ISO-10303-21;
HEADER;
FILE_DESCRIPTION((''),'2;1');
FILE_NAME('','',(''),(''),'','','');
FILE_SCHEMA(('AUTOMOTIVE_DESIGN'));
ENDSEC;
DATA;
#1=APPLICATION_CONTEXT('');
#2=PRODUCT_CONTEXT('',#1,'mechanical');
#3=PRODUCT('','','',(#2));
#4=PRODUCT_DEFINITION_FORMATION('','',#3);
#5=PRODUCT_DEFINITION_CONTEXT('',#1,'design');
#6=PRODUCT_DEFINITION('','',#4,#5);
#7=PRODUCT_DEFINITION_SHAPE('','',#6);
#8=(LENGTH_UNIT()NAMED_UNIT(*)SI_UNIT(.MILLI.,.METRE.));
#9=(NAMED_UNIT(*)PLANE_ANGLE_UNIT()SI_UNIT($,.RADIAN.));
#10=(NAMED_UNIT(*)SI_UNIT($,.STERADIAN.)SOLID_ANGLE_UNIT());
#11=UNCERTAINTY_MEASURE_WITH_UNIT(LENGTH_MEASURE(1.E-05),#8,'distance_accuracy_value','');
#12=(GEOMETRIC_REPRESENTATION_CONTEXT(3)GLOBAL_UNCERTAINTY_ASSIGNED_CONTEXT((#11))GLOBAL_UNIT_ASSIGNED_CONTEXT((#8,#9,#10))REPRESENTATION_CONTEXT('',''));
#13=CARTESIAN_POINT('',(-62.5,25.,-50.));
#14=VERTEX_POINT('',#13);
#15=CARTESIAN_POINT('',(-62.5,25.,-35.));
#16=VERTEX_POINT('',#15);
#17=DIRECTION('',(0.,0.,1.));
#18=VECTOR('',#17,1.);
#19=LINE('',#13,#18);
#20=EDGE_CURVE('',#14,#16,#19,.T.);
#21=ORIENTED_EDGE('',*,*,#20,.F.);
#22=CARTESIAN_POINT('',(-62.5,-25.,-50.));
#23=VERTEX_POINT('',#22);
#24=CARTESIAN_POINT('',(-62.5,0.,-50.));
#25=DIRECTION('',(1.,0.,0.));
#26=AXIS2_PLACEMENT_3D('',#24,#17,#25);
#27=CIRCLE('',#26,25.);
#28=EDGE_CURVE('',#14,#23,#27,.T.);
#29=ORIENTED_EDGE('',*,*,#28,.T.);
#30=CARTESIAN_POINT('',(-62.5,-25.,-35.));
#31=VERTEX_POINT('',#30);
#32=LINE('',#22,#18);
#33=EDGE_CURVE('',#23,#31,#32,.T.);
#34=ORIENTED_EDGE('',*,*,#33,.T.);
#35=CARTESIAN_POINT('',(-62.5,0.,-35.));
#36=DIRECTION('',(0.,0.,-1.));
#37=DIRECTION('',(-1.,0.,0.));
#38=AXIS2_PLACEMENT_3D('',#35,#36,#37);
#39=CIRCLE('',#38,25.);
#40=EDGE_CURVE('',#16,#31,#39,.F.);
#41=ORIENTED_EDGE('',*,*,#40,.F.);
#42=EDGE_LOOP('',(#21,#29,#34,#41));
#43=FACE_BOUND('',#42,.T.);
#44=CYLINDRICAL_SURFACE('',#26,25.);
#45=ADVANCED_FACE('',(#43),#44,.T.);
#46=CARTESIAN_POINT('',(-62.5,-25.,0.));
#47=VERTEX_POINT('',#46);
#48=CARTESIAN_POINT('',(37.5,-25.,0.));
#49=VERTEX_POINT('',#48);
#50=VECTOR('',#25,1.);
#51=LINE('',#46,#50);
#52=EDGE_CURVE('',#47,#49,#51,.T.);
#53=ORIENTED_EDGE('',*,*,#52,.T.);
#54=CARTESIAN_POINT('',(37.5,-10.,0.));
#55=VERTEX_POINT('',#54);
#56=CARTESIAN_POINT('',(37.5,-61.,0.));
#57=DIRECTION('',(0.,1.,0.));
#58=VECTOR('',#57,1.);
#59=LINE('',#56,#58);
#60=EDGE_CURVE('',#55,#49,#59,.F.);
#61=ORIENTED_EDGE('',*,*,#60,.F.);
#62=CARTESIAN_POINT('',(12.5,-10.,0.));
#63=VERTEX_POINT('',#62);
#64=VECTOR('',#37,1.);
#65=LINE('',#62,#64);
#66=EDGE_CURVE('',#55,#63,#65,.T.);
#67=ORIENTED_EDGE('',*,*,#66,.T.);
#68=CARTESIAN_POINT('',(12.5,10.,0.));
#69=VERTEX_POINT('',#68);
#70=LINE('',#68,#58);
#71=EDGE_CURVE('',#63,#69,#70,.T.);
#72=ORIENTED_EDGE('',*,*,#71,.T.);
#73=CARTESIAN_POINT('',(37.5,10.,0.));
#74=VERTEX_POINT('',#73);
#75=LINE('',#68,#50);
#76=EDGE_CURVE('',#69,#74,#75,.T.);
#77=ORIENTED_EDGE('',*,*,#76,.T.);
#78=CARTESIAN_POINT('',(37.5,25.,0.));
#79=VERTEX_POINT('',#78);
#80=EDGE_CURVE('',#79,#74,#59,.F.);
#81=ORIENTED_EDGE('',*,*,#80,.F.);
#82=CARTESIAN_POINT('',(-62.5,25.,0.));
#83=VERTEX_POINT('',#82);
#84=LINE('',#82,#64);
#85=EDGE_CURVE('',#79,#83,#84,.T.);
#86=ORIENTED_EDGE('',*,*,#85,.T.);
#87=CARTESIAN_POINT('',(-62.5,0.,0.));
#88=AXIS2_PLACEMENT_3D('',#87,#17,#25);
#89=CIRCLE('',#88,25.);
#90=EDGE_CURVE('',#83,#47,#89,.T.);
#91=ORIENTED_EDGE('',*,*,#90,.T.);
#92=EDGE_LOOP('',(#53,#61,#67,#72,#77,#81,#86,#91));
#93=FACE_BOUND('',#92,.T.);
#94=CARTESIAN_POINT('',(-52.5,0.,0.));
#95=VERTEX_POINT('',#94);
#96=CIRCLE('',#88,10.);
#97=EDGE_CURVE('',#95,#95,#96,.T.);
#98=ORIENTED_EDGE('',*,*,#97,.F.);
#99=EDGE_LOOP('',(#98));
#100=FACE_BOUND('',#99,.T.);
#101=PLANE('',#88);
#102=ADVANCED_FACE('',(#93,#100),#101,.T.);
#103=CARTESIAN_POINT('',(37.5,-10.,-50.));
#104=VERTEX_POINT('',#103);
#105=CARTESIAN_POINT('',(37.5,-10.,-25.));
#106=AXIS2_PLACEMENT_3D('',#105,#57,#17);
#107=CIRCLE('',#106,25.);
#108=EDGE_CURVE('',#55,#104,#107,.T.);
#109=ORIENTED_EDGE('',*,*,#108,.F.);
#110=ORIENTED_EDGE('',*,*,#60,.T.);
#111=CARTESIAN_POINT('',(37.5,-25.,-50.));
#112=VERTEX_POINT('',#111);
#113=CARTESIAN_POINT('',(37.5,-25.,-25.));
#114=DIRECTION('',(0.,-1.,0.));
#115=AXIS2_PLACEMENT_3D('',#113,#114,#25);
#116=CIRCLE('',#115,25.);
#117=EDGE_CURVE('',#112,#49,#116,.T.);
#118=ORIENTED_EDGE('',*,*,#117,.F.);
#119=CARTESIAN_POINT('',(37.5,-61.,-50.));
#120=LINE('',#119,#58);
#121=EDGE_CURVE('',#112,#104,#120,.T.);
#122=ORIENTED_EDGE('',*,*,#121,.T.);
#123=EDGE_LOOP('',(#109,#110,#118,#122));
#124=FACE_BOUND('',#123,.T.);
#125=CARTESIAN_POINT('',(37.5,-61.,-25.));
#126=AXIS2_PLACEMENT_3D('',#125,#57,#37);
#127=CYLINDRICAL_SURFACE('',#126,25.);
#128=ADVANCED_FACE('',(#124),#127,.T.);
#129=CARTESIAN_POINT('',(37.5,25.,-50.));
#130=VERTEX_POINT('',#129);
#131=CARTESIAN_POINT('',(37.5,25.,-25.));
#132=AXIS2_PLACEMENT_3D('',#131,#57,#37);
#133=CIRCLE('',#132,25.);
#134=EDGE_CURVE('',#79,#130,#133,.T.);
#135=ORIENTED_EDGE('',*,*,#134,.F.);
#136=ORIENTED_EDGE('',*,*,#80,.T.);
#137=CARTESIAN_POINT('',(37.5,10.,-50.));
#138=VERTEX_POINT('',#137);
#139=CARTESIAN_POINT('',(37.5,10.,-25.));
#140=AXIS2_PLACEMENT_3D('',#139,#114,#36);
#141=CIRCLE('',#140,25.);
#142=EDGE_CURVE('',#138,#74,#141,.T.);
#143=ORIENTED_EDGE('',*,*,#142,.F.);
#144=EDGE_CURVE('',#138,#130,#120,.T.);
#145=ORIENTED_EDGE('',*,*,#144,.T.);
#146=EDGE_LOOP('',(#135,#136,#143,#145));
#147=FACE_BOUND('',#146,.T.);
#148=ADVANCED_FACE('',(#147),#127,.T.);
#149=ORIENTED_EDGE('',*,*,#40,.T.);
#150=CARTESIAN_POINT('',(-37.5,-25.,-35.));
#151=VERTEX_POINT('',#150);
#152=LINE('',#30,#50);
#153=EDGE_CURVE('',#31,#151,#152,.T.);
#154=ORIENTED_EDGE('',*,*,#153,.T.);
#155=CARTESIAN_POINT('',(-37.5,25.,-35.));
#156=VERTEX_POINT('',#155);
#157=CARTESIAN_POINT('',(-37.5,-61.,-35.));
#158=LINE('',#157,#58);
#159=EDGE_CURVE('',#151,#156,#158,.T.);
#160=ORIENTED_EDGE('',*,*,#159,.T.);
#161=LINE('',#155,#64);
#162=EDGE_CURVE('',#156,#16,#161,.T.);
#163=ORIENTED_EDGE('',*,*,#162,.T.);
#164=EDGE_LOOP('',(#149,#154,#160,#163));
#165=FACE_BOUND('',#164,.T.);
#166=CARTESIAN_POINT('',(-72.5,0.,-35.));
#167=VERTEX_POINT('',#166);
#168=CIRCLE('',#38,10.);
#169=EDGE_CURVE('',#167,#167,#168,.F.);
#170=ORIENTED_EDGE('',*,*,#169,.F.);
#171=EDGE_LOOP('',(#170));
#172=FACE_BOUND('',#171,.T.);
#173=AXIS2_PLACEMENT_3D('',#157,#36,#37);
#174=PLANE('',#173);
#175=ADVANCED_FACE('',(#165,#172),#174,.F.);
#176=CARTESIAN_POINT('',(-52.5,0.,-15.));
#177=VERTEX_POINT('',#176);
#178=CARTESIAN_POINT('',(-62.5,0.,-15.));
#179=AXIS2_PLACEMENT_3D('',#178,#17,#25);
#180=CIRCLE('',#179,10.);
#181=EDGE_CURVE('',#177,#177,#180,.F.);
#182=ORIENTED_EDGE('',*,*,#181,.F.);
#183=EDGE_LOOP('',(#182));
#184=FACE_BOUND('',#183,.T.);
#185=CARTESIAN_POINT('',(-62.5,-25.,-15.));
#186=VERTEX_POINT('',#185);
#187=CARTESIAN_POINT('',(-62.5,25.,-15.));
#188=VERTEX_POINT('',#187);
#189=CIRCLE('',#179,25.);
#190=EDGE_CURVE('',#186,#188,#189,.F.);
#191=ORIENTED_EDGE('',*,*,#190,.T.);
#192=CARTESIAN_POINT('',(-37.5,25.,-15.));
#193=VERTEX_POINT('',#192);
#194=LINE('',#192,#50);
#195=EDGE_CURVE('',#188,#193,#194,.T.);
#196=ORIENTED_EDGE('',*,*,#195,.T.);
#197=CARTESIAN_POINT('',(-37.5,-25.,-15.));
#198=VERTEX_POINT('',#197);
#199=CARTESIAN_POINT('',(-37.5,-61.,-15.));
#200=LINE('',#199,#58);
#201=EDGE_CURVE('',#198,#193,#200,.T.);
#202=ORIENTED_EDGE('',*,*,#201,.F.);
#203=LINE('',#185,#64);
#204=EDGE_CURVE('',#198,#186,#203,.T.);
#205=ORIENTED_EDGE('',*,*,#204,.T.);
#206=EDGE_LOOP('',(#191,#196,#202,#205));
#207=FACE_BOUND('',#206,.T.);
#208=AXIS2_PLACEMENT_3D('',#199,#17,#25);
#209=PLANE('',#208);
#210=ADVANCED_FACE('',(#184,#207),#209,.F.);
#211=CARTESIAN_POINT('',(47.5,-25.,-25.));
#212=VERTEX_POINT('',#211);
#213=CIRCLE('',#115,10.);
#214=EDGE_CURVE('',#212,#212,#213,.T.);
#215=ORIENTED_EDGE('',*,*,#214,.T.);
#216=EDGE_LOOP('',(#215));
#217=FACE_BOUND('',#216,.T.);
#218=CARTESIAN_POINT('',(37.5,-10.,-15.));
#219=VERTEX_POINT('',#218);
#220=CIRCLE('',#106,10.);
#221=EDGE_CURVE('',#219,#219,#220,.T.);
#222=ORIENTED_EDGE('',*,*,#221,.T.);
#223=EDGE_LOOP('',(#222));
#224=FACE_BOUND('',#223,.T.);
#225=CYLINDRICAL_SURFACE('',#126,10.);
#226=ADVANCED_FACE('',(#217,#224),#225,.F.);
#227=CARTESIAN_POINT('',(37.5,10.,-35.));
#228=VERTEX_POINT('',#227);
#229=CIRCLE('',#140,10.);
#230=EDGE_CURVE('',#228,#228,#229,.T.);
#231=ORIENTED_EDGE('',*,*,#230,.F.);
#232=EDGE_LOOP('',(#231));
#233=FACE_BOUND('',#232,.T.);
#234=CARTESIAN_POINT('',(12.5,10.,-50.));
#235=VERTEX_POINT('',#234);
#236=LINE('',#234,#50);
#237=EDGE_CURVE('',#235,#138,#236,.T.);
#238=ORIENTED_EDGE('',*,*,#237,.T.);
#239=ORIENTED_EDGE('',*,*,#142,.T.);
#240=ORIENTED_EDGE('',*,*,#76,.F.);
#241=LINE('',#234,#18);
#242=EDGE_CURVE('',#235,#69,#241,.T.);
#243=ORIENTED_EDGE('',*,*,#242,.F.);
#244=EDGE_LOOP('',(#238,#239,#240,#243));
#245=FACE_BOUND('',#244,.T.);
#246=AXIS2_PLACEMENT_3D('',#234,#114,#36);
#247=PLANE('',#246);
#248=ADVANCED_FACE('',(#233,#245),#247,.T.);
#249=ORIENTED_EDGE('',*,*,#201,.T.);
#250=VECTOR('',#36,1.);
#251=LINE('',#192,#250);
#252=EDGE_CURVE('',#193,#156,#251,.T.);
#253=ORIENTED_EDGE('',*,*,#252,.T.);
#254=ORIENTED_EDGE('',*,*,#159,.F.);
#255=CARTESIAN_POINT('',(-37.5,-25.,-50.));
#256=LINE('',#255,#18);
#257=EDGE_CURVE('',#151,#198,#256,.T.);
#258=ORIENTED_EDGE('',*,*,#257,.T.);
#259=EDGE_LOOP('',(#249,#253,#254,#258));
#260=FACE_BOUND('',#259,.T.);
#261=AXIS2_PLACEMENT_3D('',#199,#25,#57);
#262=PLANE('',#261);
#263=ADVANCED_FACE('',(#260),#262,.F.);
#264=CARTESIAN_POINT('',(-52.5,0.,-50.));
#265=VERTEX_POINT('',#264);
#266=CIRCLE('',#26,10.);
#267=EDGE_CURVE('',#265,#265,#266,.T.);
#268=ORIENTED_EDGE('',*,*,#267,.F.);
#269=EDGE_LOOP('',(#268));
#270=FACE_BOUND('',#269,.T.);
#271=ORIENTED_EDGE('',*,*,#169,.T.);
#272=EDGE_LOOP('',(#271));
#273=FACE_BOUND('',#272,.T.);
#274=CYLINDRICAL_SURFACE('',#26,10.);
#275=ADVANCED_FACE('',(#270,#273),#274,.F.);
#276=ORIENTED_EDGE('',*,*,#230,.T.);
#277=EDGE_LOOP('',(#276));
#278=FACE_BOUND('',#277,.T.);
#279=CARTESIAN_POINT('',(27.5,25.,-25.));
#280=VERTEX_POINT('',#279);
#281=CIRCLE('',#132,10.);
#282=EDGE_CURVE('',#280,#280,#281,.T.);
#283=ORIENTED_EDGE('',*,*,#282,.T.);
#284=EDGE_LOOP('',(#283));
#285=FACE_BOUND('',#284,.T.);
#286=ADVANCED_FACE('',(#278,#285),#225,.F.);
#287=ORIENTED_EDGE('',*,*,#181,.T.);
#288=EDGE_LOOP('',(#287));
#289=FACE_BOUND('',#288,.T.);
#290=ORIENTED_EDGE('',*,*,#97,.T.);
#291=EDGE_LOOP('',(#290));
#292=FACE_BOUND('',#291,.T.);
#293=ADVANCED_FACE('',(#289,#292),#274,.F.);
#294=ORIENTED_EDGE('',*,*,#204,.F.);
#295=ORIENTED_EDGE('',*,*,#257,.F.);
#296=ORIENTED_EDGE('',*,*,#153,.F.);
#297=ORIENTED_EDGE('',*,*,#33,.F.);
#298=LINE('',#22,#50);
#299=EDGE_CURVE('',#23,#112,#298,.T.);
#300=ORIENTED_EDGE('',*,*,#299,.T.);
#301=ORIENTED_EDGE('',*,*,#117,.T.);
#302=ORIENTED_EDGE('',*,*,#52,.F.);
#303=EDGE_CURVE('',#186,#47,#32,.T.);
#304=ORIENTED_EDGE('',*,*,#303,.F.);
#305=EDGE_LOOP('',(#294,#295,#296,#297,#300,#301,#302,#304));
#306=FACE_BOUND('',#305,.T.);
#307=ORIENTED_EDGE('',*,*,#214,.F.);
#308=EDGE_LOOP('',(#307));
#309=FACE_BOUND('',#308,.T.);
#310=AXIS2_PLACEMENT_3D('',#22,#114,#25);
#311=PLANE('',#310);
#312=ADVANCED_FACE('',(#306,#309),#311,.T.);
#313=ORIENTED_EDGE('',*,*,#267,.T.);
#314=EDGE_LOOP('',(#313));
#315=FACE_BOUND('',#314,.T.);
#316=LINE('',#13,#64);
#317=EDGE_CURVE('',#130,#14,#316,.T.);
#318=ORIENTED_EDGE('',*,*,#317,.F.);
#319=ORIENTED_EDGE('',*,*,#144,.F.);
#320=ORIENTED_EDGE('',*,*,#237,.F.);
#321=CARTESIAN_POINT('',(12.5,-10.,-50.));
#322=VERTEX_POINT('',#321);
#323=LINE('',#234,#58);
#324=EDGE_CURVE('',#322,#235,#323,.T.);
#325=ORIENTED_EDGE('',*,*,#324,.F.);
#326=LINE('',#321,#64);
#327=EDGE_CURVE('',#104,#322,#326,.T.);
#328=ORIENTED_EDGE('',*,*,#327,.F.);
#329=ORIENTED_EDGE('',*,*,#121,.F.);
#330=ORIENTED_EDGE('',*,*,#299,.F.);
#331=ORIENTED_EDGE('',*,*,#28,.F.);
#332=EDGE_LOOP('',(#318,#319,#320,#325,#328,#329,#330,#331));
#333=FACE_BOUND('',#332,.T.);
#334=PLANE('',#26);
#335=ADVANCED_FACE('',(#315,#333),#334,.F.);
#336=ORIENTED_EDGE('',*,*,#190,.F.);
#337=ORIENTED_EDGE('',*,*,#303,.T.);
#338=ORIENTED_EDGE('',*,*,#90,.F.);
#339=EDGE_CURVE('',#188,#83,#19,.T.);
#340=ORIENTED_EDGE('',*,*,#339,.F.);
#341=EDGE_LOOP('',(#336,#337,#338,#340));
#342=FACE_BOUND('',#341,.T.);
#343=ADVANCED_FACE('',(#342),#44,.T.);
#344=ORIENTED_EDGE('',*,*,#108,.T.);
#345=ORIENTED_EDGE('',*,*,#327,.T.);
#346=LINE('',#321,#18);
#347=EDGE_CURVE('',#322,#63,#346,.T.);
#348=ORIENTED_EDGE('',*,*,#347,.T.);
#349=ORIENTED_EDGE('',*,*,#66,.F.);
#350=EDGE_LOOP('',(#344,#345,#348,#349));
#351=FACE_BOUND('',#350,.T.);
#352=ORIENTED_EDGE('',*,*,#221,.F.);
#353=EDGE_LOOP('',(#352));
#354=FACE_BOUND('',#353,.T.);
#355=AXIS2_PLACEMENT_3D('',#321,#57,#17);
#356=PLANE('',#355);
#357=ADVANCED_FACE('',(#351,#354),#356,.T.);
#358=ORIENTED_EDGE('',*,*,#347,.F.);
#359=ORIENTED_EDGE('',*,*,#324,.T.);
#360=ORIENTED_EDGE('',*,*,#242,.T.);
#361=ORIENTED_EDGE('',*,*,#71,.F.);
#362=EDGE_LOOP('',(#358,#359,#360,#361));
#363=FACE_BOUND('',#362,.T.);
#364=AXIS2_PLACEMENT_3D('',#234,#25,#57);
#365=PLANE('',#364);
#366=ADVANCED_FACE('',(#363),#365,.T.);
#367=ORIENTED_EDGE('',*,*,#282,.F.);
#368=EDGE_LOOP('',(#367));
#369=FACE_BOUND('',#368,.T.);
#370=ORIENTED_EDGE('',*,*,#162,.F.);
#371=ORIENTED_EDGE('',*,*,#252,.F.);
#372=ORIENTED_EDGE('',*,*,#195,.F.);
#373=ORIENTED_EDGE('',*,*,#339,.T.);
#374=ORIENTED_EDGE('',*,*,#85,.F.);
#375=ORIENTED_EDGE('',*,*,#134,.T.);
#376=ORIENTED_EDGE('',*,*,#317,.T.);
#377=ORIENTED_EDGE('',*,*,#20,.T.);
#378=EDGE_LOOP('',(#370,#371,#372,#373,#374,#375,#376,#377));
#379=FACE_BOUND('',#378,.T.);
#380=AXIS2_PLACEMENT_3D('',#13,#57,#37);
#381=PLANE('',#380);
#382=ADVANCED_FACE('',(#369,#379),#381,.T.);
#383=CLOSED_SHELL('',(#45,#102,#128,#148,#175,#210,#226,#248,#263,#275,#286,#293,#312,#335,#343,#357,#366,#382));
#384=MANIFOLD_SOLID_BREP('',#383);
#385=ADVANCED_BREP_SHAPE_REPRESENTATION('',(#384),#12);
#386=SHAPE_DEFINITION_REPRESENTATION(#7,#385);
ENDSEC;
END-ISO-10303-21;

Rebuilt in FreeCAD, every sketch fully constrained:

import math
import FreeCAD as App
import Part
import Sketcher

V = App.Vector
Q = App.Units.Quantity

doc = App.newDocument("Part")
params = doc.addObject("Spreadsheet::Sheet", "Params")
for row, (alias, value) in enumerate([
    ("sketch1_diameter", "20 mm"),
    ("sketch1_radius", "25 mm"),
    ("sketch1_width", "50 mm"),
    ("sketch1_width2", "125 mm"),
    ("sketch1_height", "15 mm"),
    ("pad1_length", "50 mm"),
    ("sketch2_radius", "25 mm"),
    ("pocket1_length", "86 mm"),
    ("sketch3_radius", "25 mm"),
    ("pocket2_length", "86 mm"),
    ("sketch4_diameter", "20 mm"),
    ("pocket3_length", "86 mm"),
    ("sketch5_width", "50 mm"),
    ("sketch5_height", "20 mm"),
    ("pocket4_length", "86 mm"),
], start=1):
    params.set(f"A{row}", alias)
    params.set(f"B{row}", "=" + value)
    params.setAlias(f"B{row}", alias)

body = doc.addObject("PartDesign::Body", "Body")

# Sketch on XY plane
sketch1 = body.newObject("Sketcher::SketchObject", "Sketch")
sketch1.AttachmentSupport = (doc.getObject("XY_Plane"), [""])
sketch1.MapMode = "FlatFace"
sketch1.addGeometry(Part.LineSegment(V(12.5, 10, 0), V(62.5, 10, 0)), False)
sketch1.addGeometry(Part.LineSegment(V(62.5, 10, 0), V(62.5, 25, 0)), False)
sketch1.addGeometry(Part.LineSegment(V(62.5, 25, 0), V(-62.5, 25, 0)), False)
sketch1.addGeometry(Part.ArcOfCircle(Part.Circle(V(-62.5, 0, 0), V(0, 0, 1), 25), math.radians(90), math.radians(270)), False)
sketch1.addGeometry(Part.LineSegment(V(-62.5, -25, 0), V(62.5, -25, 0)), False)
sketch1.addGeometry(Part.LineSegment(V(62.5, -25, 0), V(62.5, -10, 0)), False)
sketch1.addGeometry(Part.LineSegment(V(62.5, -10, 0), V(12.5, -10, 0)), False)
sketch1.addGeometry(Part.LineSegment(V(12.5, -10, 0), V(12.5, 10, 0)), False)
sketch1.addGeometry(Part.Circle(V(-62.5, 0, 0), V(0, 0, 1), 10), False)
sketch1.addConstraint(Sketcher.Constraint("Coincident", 0, 2, 1, 1))
sketch1.addConstraint(Sketcher.Constraint("Coincident", 1, 2, 2, 1))
sketch1.addConstraint(Sketcher.Constraint("Tangent", 2, 2, 3, 1))
sketch1.addConstraint(Sketcher.Constraint("Tangent", 3, 2, 4, 1))
sketch1.addConstraint(Sketcher.Constraint("Coincident", 4, 2, 5, 1))
sketch1.addConstraint(Sketcher.Constraint("Coincident", 5, 2, 6, 1))
sketch1.addConstraint(Sketcher.Constraint("Coincident", 6, 2, 7, 1))
sketch1.addConstraint(Sketcher.Constraint("Coincident", 7, 2, 0, 1))
sketch1.addConstraint(Sketcher.Constraint("Horizontal", 0))
sketch1.addConstraint(Sketcher.Constraint("Vertical", 1))
sketch1.addConstraint(Sketcher.Constraint("Horizontal", 2))
sketch1.addConstraint(Sketcher.Constraint("Horizontal", 4))
sketch1.addConstraint(Sketcher.Constraint("Vertical", 5))
sketch1.addConstraint(Sketcher.Constraint("Horizontal", 6))
sketch1.addConstraint(Sketcher.Constraint("Vertical", 7))
sketch1.addConstraint(Sketcher.Constraint("Coincident", 8, 3, 3, 3))
sketch1.addConstraint(Sketcher.Constraint("Symmetric", 1, 2, 3, 2, -1, 1))
sketch1.addConstraint(Sketcher.Constraint("Symmetric", 0, 2, 5, 2, -1))
sketch1.addConstraint(Sketcher.Constraint("Diameter", 8, Q("20 mm")))
sketch1.addConstraint(Sketcher.Constraint("Radius", 3, Q("25 mm")))
sketch1.addConstraint(Sketcher.Constraint("DistanceX", 0, 1, 0, 2, Q("50 mm")))
sketch1.addConstraint(Sketcher.Constraint("DistanceX", 2, 2, 2, 1, Q("125 mm")))
sketch1.addConstraint(Sketcher.Constraint("DistanceY", 1, 1, 1, 2, Q("15 mm")))
sketch1.setExpression("Constraints[18]", "Params.sketch1_diameter")
sketch1.setExpression("Constraints[19]", "Params.sketch1_radius")
sketch1.setExpression("Constraints[20]", "Params.sketch1_width")
sketch1.setExpression("Constraints[21]", "Params.sketch1_width2")
sketch1.setExpression("Constraints[22]", "Params.sketch1_height")
pad1 = body.newObject("PartDesign::Pad", "Pad")
pad1.Profile = sketch1
pad1.setExpression("Length", "Params.pad1_length")
pad1.Reversed = True

# Sketch on XZ plane
sketch2 = body.newObject("Sketcher::SketchObject", "Sketch001")
sketch2.AttachmentSupport = (doc.getObject("XZ_Plane"), [""])
sketch2.MapMode = "FlatFace"
sketch2.AttachmentOffset = App.Placement(V(0, 0, -25), App.Rotation())
sketch2.addGeometry(Part.LineSegment(V(62.5, -50, 0), V(37.5, -50, 0)), False)
sketch2.addGeometry(Part.ArcOfCircle(Part.Circle(V(37.5, -25, 0), V(0, 0, 1), 25), math.radians(-90), math.radians(0)), False)
sketch2.addGeometry(Part.LineSegment(V(62.5, -25, 0), V(62.5, -50, 0)), False)
sketch2.addConstraint(Sketcher.Constraint("Tangent", 0, 2, 1, 1))
sketch2.addConstraint(Sketcher.Constraint("Tangent", 1, 2, 2, 1))
sketch2.addConstraint(Sketcher.Constraint("Coincident", 2, 2, 0, 1))
sketch2.addConstraint(Sketcher.Constraint("Horizontal", 0))
sketch2.addConstraint(Sketcher.Constraint("Vertical", 2))
sketch2.addConstraint(Sketcher.Constraint("Radius", 1, Q("25 mm")))
sketch2.addConstraint(Sketcher.Constraint("DistanceY", 1, 3, -1, 1, Q("25 mm")))
sketch2.addConstraint(Sketcher.Constraint("DistanceX", -1, 1, 1, 3, Q("37.5 mm")))
sketch2.setExpression("Constraints[5]", "Params.sketch2_radius")
pocket1 = body.newObject("PartDesign::Pocket", "Pocket")
pocket1.Profile = sketch2
pocket1.setExpression("Length", "Params.pocket1_length")
pocket1.Reversed = True

# Sketch on XZ plane
sketch3 = body.newObject("Sketcher::SketchObject", "Sketch002")
sketch3.AttachmentSupport = (doc.getObject("XZ_Plane"), [""])
sketch3.MapMode = "FlatFace"
sketch3.AttachmentOffset = App.Placement(V(0, 0, -25), App.Rotation())
sketch3.addGeometry(Part.LineSegment(V(37.5, 0, 0), V(62.5, 0, 0)), False)
sketch3.addGeometry(Part.LineSegment(V(62.5, 0, 0), V(62.5, -25, 0)), False)
sketch3.addGeometry(Part.ArcOfCircle(Part.Circle(V(37.5, -25, 0), V(0, 0, 1), 25), math.radians(0), math.radians(90)), False)
sketch3.addConstraint(Sketcher.Constraint("Coincident", 0, 2, 1, 1))
sketch3.addConstraint(Sketcher.Constraint("Tangent", 1, 2, 2, 1))
sketch3.addConstraint(Sketcher.Constraint("Tangent", 2, 2, 0, 1))
sketch3.addConstraint(Sketcher.Constraint("Horizontal", 0))
sketch3.addConstraint(Sketcher.Constraint("Vertical", 1))
sketch3.addConstraint(Sketcher.Constraint("PointOnObject", 0, 2, -1))
sketch3.addConstraint(Sketcher.Constraint("Radius", 2, Q("25 mm")))
sketch3.addConstraint(Sketcher.Constraint("DistanceX", -1, 1, 2, 3, Q("37.5 mm")))
sketch3.setExpression("Constraints[6]", "Params.sketch3_radius")
pocket2 = body.newObject("PartDesign::Pocket", "Pocket001")
pocket2.Profile = sketch3
pocket2.setExpression("Length", "Params.pocket2_length")
pocket2.Reversed = True

# Sketch on XZ plane
sketch4 = body.newObject("Sketcher::SketchObject", "Sketch003")
sketch4.AttachmentSupport = (doc.getObject("XZ_Plane"), [""])
sketch4.MapMode = "FlatFace"
sketch4.AttachmentOffset = App.Placement(V(0, 0, -25), App.Rotation())
sketch4.addGeometry(Part.Circle(V(37.5, -25, 0), V(0, 0, 1), 10), False)
sketch4.addConstraint(Sketcher.Constraint("Diameter", 0, Q("20 mm")))
sketch4.addConstraint(Sketcher.Constraint("DistanceY", 0, 3, -1, 1, Q("25 mm")))
sketch4.addConstraint(Sketcher.Constraint("DistanceX", -1, 1, 0, 3, Q("37.5 mm")))
sketch4.setExpression("Constraints[0]", "Params.sketch4_diameter")
pocket3 = body.newObject("PartDesign::Pocket", "Pocket002")
pocket3.Profile = sketch4
pocket3.setExpression("Length", "Params.pocket3_length")
pocket3.Reversed = True

# Sketch on XZ plane
sketch5 = body.newObject("Sketcher::SketchObject", "Sketch004")
sketch5.AttachmentSupport = (doc.getObject("XZ_Plane"), [""])
sketch5.MapMode = "FlatFace"
sketch5.AttachmentOffset = App.Placement(V(0, 0, -25), App.Rotation())
sketch5.addGeometry(Part.LineSegment(V(-87.5, -35, 0), V(-87.5, -15, 0)), False)
sketch5.addGeometry(Part.LineSegment(V(-87.5, -15, 0), V(-37.5, -15, 0)), False)
sketch5.addGeometry(Part.LineSegment(V(-37.5, -15, 0), V(-37.5, -35, 0)), False)
sketch5.addGeometry(Part.LineSegment(V(-37.5, -35, 0), V(-87.5, -35, 0)), False)
sketch5.addConstraint(Sketcher.Constraint("Coincident", 0, 2, 1, 1))
sketch5.addConstraint(Sketcher.Constraint("Coincident", 1, 2, 2, 1))
sketch5.addConstraint(Sketcher.Constraint("Coincident", 2, 2, 3, 1))
sketch5.addConstraint(Sketcher.Constraint("Coincident", 3, 2, 0, 1))
sketch5.addConstraint(Sketcher.Constraint("Vertical", 0))
sketch5.addConstraint(Sketcher.Constraint("Horizontal", 1))
sketch5.addConstraint(Sketcher.Constraint("Vertical", 2))
sketch5.addConstraint(Sketcher.Constraint("Horizontal", 3))
sketch5.addConstraint(Sketcher.Constraint("DistanceX", 1, 1, 1, 2, Q("50 mm")))
sketch5.addConstraint(Sketcher.Constraint("DistanceY", 0, 1, 0, 2, Q("20 mm")))
sketch5.addConstraint(Sketcher.Constraint("DistanceY", 0, 2, -1, 1, Q("15 mm")))
sketch5.addConstraint(Sketcher.Constraint("DistanceX", 0, 2, -1, 1, Q("87.5 mm")))
sketch5.setExpression("Constraints[8]", "Params.sketch5_width")
sketch5.setExpression("Constraints[9]", "Params.sketch5_height")
pocket4 = body.newObject("PartDesign::Pocket", "Pocket003")
pocket4.Profile = sketch5
pocket4.setExpression("Length", "Params.pocket4_length")
pocket4.Reversed = True

doc.recompute()
